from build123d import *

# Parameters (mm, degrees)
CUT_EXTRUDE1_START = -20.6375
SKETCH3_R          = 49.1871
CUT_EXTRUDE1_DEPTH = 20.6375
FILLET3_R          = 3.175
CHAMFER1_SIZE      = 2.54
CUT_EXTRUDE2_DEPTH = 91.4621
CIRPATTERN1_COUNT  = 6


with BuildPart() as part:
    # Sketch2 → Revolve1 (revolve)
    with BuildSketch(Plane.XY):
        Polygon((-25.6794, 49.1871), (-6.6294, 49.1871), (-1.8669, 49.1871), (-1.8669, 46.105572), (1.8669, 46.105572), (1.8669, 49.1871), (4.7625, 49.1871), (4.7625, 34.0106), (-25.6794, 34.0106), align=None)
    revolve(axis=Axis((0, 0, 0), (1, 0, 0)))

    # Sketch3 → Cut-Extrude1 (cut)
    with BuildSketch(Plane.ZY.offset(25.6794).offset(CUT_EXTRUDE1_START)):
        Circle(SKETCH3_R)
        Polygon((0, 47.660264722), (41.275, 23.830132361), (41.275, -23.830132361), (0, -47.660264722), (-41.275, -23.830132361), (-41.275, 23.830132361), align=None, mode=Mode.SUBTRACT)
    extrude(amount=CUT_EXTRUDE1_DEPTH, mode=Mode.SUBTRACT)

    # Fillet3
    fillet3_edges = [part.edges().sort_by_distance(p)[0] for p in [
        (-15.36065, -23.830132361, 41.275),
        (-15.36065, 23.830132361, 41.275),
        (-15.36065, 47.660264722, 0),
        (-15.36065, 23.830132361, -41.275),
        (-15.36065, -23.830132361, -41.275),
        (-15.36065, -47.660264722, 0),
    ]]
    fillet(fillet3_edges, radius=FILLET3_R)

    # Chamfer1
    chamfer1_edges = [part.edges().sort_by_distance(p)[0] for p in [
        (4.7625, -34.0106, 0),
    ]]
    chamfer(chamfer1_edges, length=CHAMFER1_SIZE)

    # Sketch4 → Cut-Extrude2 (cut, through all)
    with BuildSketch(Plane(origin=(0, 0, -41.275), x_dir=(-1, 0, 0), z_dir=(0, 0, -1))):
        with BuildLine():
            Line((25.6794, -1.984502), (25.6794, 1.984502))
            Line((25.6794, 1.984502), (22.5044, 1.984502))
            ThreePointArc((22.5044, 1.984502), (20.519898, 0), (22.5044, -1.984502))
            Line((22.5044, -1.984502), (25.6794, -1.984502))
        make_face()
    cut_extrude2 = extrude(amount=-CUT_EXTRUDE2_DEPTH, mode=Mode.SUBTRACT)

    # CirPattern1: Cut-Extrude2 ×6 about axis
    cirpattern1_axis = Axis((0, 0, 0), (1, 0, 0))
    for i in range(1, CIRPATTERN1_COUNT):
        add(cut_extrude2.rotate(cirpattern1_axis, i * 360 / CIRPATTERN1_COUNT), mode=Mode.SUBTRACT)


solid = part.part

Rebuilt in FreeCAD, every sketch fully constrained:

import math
import FreeCAD as App
import Part
import Sketcher

V = App.Vector
Q = App.Units.Quantity


def edges_at(feature, points):
    """Names of the edges that pass closest to the given points."""
    edges = feature.Shape.Edges
    near = lambda p: min(range(len(edges)), key=lambda i: edges[i].distToShape(Part.Vertex(*p))[0])
    return sorted({f"Edge{near(p) + 1}" for p in points})


def add_polygon(sketch, points):
    """Adds a closed chain of lines whose ends are joined by coincident constraints."""
    first, n = sketch.GeometryCount, len(points)
    for a, b in zip(points, points[1:] + points[:1]):
        sketch.addGeometry(Part.LineSegment(App.Vector(*a, 0), App.Vector(*b, 0)), False)
    for i in range(n):
        sketch.addConstraint(Sketcher.Constraint("Coincident", first + i, 2, first + (i + 1) % n, 1))

doc = App.newDocument("Part")
body = doc.addObject("PartDesign::Body", "Body")

sketch1 = doc.addObject("Sketcher::SketchObject", "Sketch")
body.addObject(sketch1)
sketch1.AttachmentSupport = (doc.XY_Plane, [""])
sketch1.MapMode = "FlatFace"
add_polygon(sketch1, [(-1.9, 49.2), (-25.7, 49.2), (-25.7, 34), (4.8, 34), (4.8, 49.2), (1.9, 49.2), (1.9, 46.1), (-1.9, 46.1)])
sketch1.addConstraint(Sketcher.Constraint("Horizontal", 0))
sketch1.addConstraint(Sketcher.Constraint("Vertical", 1))
sketch1.addConstraint(Sketcher.Constraint("Horizontal", 2))
sketch1.addConstraint(Sketcher.Constraint("Vertical", 3))
sketch1.addConstraint(Sketcher.Constraint("Horizontal", 4))
sketch1.addConstraint(Sketcher.Constraint("Vertical", 5))
sketch1.addConstraint(Sketcher.Constraint("Horizontal", 6))
sketch1.addConstraint(Sketcher.Constraint("Vertical", 7))
sketch1.addConstraint(Sketcher.Constraint("Symmetric", 4, 2, 7, 2, -2))
sketch1.addConstraint(Sketcher.Constraint("DistanceX", 0, 2, 0, 1, Q("0.9375 in")))
sketch1.addConstraint(Sketcher.Constraint("DistanceX", 4, 2, 4, 1, Q("0.114 in")))
sketch1.addConstraint(Sketcher.Constraint("DistanceX", 6, 2, 6, 1, Q("0.147 in")))
sketch1.addConstraint(Sketcher.Constraint("DistanceY", 1, 2, 1, 1, Q("0.5975 in")))
sketch1.addConstraint(Sketcher.Constraint("DistanceY", -1, 1, 1, 2, Q("1.339 in")))
sketch1.addConstraint(Sketcher.Constraint("DistanceY", 5, 2, 5, 1, 3.081528))
revolution = doc.addObject("PartDesign::Revolution", "Revolution")
body.addObject(revolution)
revolution.Profile = sketch1
revolution.ReferenceAxis = (sketch1, ["H_Axis"])
revolution.Angle = 360

sketch2 = doc.addObject("Sketcher::SketchObject", "Sketch001")
body.addObject(sketch2)
sketch2.AttachmentSupport = (doc.YZ_Plane, [""])
sketch2.MapMode = "FlatFace"
sketch2.AttachmentOffset = App.Placement(V(0, 0, -0.1985 * 25.4), App.Rotation())
sketch2.addGeometry(Part.Circle(V(0, 0, 0), V(0, 0, 1), 49), False)
add_polygon(sketch2, [(24, -41), (48, 0), (24, 41), (-24, 41), (-48, 0), (-24, -41)])
sketch2.addConstraint(Sketcher.Constraint("Horizontal", 3))
sketch2.addConstraint(Sketcher.Constraint("Horizontal", 6))
sketch2.addConstraint(Sketcher.Constraint("Coincident", 0, 3, -1, 1))
sketch2.addConstraint(Sketcher.Constraint("Symmetric", 1, 2, 4, 2, -1, 1))
sketch2.addConstraint(Sketcher.Constraint("Symmetric", 2, 2, 5, 2, -1, 1))
sketch2.addConstraint(Sketcher.Constraint("PointOnObject", 1, 2, -1))
sketch2.addConstraint(Sketcher.Constraint("Parallel", 1, 4))
sketch2.addConstraint(Sketcher.Constraint("Vertical", 3, 2, 5, 2))
sketch2.addConstraint(Sketcher.Constraint("Diameter", 0, Q("3.873 in")))
sketch2.addConstraint(Sketcher.Constraint("Angle", 1, Q("60 deg")))
sketch2.addConstraint(Sketcher.Constraint("DistanceY", 5, 2, 3, 2, Q("3.25 in")))
sketch2.addConstraint(Sketcher.Constraint("DistanceX", 3, 2, 3, 1, 47.660265))
pocket1 = doc.addObject("PartDesign::Pocket", "Pocket")
body.addObject(pocket1)
pocket1.Profile = sketch2
pocket1.Length = Q("0.8125 in")
doc.recompute()

fillet = doc.addObject("PartDesign::Fillet", "Fillet")
body.addObject(fillet)
fillet.Base = (pocket1, edges_at(pocket1, [
    (-15.361, -23.83, 41.275),
    (-15.361, 23.83, 41.275),
    (-15.361, 47.66, 0),
    (-15.361, 23.83, -41.275),
    (-15.361, -23.83, -41.275),
    (-15.361, -47.66, 0),
]))
fillet.Radius = Q("0.125 in")
doc.recompute()

chamfer = doc.addObject("PartDesign::Chamfer", "Chamfer")
body.addObject(chamfer)
chamfer.Base = (fillet, edges_at(fillet, [(4.763, -34.011, 0)]))
chamfer.Size = Q("0.1 in")

sketch3 = doc.addObject("Sketcher::SketchObject", "Sketch002")
body.addObject(sketch3)
sketch3.AttachmentSupport = (doc.XY_Plane, [""])
sketch3.MapMode = "FlatFace"
sketch3.AttachmentOffset = App.Placement(V(0, 0, -1.625 * 25.4), App.Rotation())
sketch3.addGeometry(Part.LineSegment(V(-25.7, -2, 0), V(-25.7, 2, 0)), False)
sketch3.addGeometry(Part.LineSegment(V(-25.7, 2, 0), V(-22.5, 2, 0)), False)
sketch3.addGeometry(Part.ArcOfCircle(Part.Circle(V(-22.5, 0, 0), V(0, 0, 1), 2), math.radians(-90), math.radians(90)), False)
sketch3.addGeometry(Part.LineSegment(V(-22.5, -2, 0), V(-25.7, -2, 0)), False)
sketch3.addConstraint(Sketcher.Constraint("Coincident", 0, 2, 1, 1))
sketch3.addConstraint(Sketcher.Constraint("Tangent", 1, 2, 2, 2))
sketch3.addConstraint(Sketcher.Constraint("Tangent", 2, 1, 3, 1))
sketch3.addConstraint(Sketcher.Constraint("Coincident", 3, 2, 0, 1))
sketch3.addConstraint(Sketcher.Constraint("Vertical", 0))
sketch3.addConstraint(Sketcher.Constraint("Horizontal", 1))
sketch3.addConstraint(Sketcher.Constraint("Horizontal", 3))
sketch3.addConstraint(Sketcher.Constraint("PointOnObject", 2, 3, -1))
sketch3.addConstraint(Sketcher.Constraint("DistanceX", 1, 1, 1, 2, Q("0.125 in")))
sketch3.addConstraint(Sketcher.Constraint("DistanceX", 2, 3, -1, 1, Q("0.886 in")))
sketch3.addConstraint(Sketcher.Constraint("Radius", 2, 1.984502))
pocket2 = doc.addObject("PartDesign::Pocket", "Pocket001")
body.addObject(pocket2)
pocket2.Profile = sketch3
pocket2.Type = "ThroughAll"
pocket2.Reversed = True
doc.recompute()

polarpattern = doc.addObject("PartDesign::PolarPattern", "PolarPattern")
body.addObject(polarpattern)
polarpattern.Originals = [pocket2]
polarpattern.Axis = (doc.X_Axis, [""])
polarpattern.Angle = 360
polarpattern.Occurrences = 6
body.Tip = polarpattern

doc.recompute()
